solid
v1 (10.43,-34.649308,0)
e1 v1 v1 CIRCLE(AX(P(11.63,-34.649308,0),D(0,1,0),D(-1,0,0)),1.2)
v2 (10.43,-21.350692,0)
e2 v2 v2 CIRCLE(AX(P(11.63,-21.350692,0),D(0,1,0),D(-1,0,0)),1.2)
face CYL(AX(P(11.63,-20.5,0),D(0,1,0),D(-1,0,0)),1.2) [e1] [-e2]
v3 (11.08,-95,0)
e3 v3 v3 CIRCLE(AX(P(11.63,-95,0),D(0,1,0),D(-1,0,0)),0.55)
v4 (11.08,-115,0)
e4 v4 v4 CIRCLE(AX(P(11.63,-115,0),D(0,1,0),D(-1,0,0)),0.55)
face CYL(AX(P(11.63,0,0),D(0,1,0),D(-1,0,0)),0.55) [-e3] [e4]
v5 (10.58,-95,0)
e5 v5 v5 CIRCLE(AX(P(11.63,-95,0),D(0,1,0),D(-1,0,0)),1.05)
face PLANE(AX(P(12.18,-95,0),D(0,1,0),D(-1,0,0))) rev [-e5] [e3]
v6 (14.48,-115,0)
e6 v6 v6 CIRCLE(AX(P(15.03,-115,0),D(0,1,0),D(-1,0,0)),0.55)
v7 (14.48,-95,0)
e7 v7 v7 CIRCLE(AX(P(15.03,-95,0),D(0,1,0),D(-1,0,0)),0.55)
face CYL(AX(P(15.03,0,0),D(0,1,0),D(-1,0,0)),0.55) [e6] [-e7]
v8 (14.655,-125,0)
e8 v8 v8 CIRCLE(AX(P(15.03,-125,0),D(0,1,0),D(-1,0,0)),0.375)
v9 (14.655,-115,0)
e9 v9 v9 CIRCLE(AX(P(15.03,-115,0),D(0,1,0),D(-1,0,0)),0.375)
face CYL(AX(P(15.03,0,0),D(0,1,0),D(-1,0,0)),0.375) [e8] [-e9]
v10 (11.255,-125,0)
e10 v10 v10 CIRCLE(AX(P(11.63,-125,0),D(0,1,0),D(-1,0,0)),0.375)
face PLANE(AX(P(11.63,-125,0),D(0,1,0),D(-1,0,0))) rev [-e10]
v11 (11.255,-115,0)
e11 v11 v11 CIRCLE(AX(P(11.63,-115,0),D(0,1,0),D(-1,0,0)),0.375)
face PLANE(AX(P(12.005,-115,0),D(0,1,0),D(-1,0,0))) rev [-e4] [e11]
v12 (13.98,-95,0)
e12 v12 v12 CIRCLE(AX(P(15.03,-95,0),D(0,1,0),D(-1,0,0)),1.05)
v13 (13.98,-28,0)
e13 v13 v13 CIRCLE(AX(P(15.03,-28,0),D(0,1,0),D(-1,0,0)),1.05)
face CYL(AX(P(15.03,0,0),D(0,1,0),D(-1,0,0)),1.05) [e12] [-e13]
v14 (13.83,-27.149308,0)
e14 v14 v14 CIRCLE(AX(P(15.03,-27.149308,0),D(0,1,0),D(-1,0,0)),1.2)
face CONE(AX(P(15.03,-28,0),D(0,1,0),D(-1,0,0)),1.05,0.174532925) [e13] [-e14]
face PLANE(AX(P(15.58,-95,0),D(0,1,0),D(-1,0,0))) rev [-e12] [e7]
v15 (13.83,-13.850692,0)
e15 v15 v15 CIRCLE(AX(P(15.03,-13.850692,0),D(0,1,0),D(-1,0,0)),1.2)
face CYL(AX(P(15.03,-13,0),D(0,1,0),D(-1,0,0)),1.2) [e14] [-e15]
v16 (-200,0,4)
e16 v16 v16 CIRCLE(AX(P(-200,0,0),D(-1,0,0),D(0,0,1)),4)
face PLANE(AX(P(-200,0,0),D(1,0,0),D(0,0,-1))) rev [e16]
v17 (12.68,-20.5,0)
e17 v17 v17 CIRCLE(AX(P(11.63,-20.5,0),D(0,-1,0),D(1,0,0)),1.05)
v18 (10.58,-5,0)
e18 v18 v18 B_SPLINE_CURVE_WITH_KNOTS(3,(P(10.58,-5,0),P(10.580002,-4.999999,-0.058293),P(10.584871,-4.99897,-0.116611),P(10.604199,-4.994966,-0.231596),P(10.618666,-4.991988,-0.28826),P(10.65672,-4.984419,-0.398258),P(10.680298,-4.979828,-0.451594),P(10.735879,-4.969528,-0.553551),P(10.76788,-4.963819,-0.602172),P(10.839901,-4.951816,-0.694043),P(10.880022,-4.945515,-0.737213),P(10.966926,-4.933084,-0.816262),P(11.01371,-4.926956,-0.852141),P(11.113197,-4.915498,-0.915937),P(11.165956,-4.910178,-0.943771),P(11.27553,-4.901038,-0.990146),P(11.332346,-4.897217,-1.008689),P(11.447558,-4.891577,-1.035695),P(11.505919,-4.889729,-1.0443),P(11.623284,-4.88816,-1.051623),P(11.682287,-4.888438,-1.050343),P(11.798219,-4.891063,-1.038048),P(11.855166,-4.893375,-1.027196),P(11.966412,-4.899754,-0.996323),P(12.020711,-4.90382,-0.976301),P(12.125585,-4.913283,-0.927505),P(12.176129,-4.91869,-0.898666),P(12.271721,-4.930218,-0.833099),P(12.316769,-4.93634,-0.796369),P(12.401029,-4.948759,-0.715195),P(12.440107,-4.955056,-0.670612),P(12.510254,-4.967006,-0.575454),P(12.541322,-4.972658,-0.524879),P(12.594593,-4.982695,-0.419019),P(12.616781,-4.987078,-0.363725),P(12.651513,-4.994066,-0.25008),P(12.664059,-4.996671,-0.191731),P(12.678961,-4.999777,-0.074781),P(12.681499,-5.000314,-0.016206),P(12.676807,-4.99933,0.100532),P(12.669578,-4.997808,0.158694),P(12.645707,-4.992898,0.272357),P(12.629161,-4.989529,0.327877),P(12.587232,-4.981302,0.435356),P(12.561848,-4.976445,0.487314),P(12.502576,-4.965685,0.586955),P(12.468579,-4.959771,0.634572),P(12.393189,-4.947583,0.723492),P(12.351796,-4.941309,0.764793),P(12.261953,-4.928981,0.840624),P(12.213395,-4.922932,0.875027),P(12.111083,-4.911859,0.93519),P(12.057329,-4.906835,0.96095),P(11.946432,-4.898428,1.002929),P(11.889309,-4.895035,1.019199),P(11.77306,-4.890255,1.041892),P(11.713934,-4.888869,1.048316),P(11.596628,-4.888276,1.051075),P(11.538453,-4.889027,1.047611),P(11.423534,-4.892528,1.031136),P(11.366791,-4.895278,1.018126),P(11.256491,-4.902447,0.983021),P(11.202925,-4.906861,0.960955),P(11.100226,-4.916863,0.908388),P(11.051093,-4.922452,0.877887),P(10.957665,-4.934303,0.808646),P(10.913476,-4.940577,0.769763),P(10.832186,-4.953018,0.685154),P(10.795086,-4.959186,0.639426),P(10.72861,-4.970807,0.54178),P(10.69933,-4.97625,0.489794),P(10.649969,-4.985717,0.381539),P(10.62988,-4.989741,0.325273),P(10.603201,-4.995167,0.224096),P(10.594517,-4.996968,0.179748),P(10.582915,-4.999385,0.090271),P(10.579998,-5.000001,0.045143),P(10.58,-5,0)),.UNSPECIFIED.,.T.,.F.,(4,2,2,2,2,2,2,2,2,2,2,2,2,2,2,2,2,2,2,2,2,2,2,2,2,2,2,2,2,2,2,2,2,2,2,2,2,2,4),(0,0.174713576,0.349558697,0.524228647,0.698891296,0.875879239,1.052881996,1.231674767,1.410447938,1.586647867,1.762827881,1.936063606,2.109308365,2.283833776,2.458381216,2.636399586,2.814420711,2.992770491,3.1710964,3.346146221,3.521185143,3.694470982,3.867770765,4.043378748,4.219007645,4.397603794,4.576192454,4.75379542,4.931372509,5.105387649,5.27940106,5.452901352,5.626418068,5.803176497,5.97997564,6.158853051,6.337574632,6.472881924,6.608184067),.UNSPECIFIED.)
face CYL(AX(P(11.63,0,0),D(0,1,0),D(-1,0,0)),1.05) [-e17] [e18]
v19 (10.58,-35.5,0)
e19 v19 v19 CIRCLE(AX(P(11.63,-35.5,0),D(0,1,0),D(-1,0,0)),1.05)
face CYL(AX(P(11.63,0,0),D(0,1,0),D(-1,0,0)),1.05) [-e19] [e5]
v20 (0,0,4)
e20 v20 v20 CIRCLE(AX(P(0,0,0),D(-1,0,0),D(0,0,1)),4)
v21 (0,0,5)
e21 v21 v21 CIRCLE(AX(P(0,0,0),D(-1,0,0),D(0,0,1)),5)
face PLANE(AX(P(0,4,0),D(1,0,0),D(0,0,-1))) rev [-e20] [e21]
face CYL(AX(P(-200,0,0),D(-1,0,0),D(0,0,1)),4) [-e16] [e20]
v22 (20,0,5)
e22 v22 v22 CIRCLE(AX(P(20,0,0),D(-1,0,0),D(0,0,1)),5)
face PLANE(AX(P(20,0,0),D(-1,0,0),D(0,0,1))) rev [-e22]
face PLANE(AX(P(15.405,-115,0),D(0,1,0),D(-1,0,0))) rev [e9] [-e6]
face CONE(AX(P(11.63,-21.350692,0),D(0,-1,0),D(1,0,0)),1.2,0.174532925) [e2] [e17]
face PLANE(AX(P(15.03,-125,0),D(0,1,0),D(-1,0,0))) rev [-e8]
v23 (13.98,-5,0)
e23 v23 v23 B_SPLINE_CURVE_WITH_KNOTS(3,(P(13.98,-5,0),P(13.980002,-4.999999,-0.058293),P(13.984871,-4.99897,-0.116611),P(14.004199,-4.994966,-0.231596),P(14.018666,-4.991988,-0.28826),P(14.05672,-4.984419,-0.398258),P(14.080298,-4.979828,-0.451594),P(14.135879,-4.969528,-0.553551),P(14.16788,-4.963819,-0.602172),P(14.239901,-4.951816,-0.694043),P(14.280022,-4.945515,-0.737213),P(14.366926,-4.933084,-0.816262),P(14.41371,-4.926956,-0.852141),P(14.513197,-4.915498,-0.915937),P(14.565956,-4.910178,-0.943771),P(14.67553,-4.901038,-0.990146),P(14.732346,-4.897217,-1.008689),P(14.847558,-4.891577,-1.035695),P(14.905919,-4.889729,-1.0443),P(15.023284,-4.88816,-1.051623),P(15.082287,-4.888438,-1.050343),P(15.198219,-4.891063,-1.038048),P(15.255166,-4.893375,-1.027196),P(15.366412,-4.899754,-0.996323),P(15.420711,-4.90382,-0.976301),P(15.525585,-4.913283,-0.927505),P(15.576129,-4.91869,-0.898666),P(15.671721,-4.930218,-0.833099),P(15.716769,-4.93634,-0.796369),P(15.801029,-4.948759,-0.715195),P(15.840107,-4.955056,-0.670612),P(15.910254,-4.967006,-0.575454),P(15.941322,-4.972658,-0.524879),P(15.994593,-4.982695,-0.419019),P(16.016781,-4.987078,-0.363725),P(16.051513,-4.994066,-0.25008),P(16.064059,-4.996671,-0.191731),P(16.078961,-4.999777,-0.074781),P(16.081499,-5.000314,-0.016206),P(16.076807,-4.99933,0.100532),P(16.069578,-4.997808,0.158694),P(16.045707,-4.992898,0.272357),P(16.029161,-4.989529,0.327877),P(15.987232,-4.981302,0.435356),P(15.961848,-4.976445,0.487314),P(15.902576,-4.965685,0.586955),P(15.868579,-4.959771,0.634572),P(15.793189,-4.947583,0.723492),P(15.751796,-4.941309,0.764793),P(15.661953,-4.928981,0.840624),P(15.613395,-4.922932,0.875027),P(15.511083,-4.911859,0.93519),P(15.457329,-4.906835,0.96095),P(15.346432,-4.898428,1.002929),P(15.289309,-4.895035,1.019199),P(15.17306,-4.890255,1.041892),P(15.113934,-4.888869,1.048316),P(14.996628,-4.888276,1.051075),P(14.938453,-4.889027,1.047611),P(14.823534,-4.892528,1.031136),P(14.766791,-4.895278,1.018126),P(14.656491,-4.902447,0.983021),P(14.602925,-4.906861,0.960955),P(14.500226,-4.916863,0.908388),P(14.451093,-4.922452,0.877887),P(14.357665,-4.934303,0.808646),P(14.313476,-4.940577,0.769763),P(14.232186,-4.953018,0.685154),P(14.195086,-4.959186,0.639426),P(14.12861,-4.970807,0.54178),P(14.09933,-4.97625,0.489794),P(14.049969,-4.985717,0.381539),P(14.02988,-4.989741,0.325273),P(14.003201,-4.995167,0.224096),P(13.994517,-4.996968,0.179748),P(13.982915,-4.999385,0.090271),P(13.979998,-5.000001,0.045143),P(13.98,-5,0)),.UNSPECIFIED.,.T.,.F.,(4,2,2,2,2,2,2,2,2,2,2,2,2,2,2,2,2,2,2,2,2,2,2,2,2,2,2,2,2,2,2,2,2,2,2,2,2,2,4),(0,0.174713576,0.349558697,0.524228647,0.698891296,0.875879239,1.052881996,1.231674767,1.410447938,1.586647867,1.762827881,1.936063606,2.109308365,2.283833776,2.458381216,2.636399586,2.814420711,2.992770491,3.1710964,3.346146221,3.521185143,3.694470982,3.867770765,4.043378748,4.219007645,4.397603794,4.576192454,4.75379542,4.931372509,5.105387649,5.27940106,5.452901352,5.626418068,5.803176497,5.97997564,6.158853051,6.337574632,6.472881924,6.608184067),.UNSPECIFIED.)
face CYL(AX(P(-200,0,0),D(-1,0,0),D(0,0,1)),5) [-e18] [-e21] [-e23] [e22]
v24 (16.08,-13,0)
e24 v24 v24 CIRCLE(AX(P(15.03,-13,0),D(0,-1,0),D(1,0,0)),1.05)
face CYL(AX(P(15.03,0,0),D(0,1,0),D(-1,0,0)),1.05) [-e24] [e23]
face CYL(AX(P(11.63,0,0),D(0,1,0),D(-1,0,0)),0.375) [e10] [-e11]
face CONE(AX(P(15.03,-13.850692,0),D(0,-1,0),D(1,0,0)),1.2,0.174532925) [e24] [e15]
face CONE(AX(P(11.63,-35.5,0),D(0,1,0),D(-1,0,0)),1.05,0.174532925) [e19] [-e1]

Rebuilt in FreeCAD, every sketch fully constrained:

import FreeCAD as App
import Part
import Sketcher

V = App.Vector
Q = App.Units.Quantity

doc = App.newDocument("Part")
params = doc.addObject("Spreadsheet::Sheet", "Params")
for row, (alias, value) in enumerate([
    ("sketch1_width", "200 mm"),
    ("sketch1_width2", "220 mm"),
    ("sketch1_height", "1 mm"),
    ("sketch1_height2", "4 mm"),
    ("revolution_angle", "360 deg"),
    ("sketch2_height", "10 mm"),
    ("sketch2_height2", "20 mm"),
    ("sketch2_height3", "95 mm"),
    ("sketch2_width", "0.5 mm"),
    ("sketch2_width2", "1.05 mm"),
    ("revolution2_angle", "360 deg"),
    ("linearpattern_pitch", "3.4 mm"),
    ("sketch3_height", "15 mm"),
    ("sketch3_width", "1.05 mm"),
    ("revolution3_angle", "360 deg"),
    ("sketch4_height", "15 mm"),
    ("sketch4_width", "1.05 mm"),
    ("revolution4_angle", "360 deg"),
], start=1):
    params.set(f"A{row}", alias)
    params.set(f"B{row}", "=" + value)
    params.setAlias(f"B{row}", alias)

body = doc.addObject("PartDesign::Body", "Body")

# Sketch on XY plane
sketch1 = doc.addObject("Sketcher::SketchObject", "Sketch")
body.addObject(sketch1)
sketch1.AttachmentSupport = (doc.XY_Plane, [""])
sketch1.MapMode = "FlatFace"
sketch1.addGeometry([
    Part.LineSegment(V(0, 5, 0), V(0, 4, 0)),  # 0
    Part.LineSegment(V(0, 4, 0), V(-200, 4, 0)),  # 1
    Part.LineSegment(V(-200, 4, 0), V(-200, 0, 0)),  # 2
    Part.LineSegment(V(-200, 0, 0), V(20, 0, 0)),  # 3
    Part.LineSegment(V(20, 0, 0), V(20, 5, 0)),  # 4
    Part.LineSegment(V(20, 5, 0), V(0, 5, 0)),  # 5
], False)
sketch1.addConstraint([
    Sketcher.Constraint("Coincident", 0, 2, 1, 1),
    Sketcher.Constraint("Coincident", 1, 2, 2, 1),
    Sketcher.Constraint("Coincident", 2, 2, 3, 1),
    Sketcher.Constraint("Coincident", 3, 2, 4, 1),
    Sketcher.Constraint("Coincident", 4, 2, 5, 1),
    Sketcher.Constraint("Coincident", 5, 2, 0, 1),
    Sketcher.Constraint("Vertical", 0),
    Sketcher.Constraint("Horizontal", 1),
    Sketcher.Constraint("Vertical", 2),
    Sketcher.Constraint("Horizontal", 3),
    Sketcher.Constraint("Vertical", 4),
    Sketcher.Constraint("Horizontal", 5),
    Sketcher.Constraint("PointOnObject", 0, 2, -2),
    Sketcher.Constraint("PointOnObject", 2, 2, -1),
    Sketcher.Constraint("DistanceX", 1, 2, 1, 1, 200.0),
    Sketcher.Constraint("DistanceX", 3, 1, 3, 2, 220.0),
    Sketcher.Constraint("DistanceY", 0, 2, 0, 1, 1.0),
    Sketcher.Constraint("DistanceY", 2, 2, 2, 1, 4.0),
])
sketch1.setExpression("Constraints[14]", "Params.sketch1_width")
sketch1.setExpression("Constraints[15]", "Params.sketch1_width2")
sketch1.setExpression("Constraints[16]", "Params.sketch1_height")
sketch1.setExpression("Constraints[17]", "Params.sketch1_height2")
revolution = doc.addObject("PartDesign::Revolution", "Revolution")
body.addObject(revolution)
revolution.Profile = sketch1
revolution.ReferenceAxis = (sketch1, ["H_Axis"])
revolution.setExpression("Angle", "Params.revolution_angle")

# Sketch on XY plane
sketch2 = doc.addObject("Sketcher::SketchObject", "Sketch001")
body.addObject(sketch2)
sketch2.AttachmentSupport = (doc.XY_Plane, [""])
sketch2.MapMode = "FlatFace"
sketch2.addGeometry([
    Part.LineSegment(V(15.405, -125, 0), V(15.405, -115, 0)),  # 0
    Part.LineSegment(V(15.405, -115, 0), V(15.58, -115, 0)),  # 1
    Part.LineSegment(V(15.58, -115, 0), V(15.58, -95, 0)),  # 2
    Part.LineSegment(V(15.58, -95, 0), V(16.08, -95, 0)),  # 3
    Part.LineSegment(V(16.08, -95, 0), V(16.08, 0, 0)),  # 4
    Part.LineSegment(V(16.08, 0, 0), V(15.03, 0, 0)),  # 5
    Part.LineSegment(V(15.03, 0, 0), V(15.03, -125, 0)),  # 6
    Part.LineSegment(V(15.03, -125, 0), V(15.405, -125, 0)),  # 7
], False)
sketch2.addGeometry(Part.LineSegment(V(15.03, 0, 0), V(15.03, -125, 0)), True)  # axis
sketch2.addConstraint([
    Sketcher.Constraint("Coincident", 0, 2, 1, 1),
    Sketcher.Constraint("Coincident", 1, 2, 2, 1),
    Sketcher.Constraint("Coincident", 2, 2, 3, 1),
    Sketcher.Constraint("Coincident", 3, 2, 4, 1),
    Sketcher.Constraint("Coincident", 4, 2, 5, 1),
    Sketcher.Constraint("Coincident", 5, 2, 6, 1),
    Sketcher.Constraint("Coincident", 6, 2, 7, 1),
    Sketcher.Constraint("Coincident", 7, 2, 0, 1),
    Sketcher.Constraint("Vertical", 0),
    Sketcher.Constraint("Horizontal", 1),
    Sketcher.Constraint("Vertical", 2),
    Sketcher.Constraint("Horizontal", 3),
    Sketcher.Constraint("Vertical", 4),
    Sketcher.Constraint("Horizontal", 5),
    Sketcher.Constraint("Vertical", 6),
    Sketcher.Constraint("Horizontal", 7),
    Sketcher.Constraint("Vertical", 8),
    Sketcher.Constraint("Coincident", 8, 1, 5, 2),
    Sketcher.Constraint("PointOnObject", 4, 2, -1),
    Sketcher.Constraint("Horizontal", 7, 2, 8, 2),
    Sketcher.Constraint("DistanceY", 0, 1, 0, 2, 10.0),
    Sketcher.Constraint("DistanceY", 2, 1, 2, 2, 20.0),
    Sketcher.Constraint("DistanceY", 4, 1, 4, 2, 95.0),
    Sketcher.Constraint("DistanceX", 3, 1, 3, 2, 0.5),
    Sketcher.Constraint("DistanceX", 5, 2, 5, 1, 1.05),
    Sketcher.Constraint("DistanceX", 1, 1, 1, 2, 0.175),
    Sketcher.Constraint("DistanceX", -1, 1, 1, 2, 15.58),
])
sketch2.setExpression("Constraints[20]", "Params.sketch2_height")
sketch2.setExpression("Constraints[21]", "Params.sketch2_height2")
sketch2.setExpression("Constraints[22]", "Params.sketch2_height3")
sketch2.setExpression("Constraints[23]", "Params.sketch2_width")
sketch2.setExpression("Constraints[24]", "Params.sketch2_width2")
revolution2 = doc.addObject("PartDesign::Revolution", "Revolution001")
body.addObject(revolution2)
revolution2.Profile = sketch2
revolution2.ReferenceAxis = (sketch2, ["Axis0"])
revolution2.setExpression("Angle", "Params.revolution2_angle")
doc.recompute()

linearpattern = doc.addObject("PartDesign::LinearPattern", "LinearPattern")
body.addObject(linearpattern)
linearpattern.Originals = [revolution2]
linearpattern.Direction = (doc.X_Axis, [""])
linearpattern.Mode = "offset"
linearpattern.setExpression("Offset", "Params.linearpattern_pitch")
linearpattern.Occurrences = 2
linearpattern.Reversed = True
body.Tip = linearpattern

# Sketch on XY plane
sketch3 = doc.addObject("Sketcher::SketchObject", "Sketch002")
body.addObject(sketch3)
sketch3.AttachmentSupport = (doc.XY_Plane, [""])
sketch3.MapMode = "FlatFace"
sketch3.addGeometry([
    Part.LineSegment(V(16.08, -13, 0), V(15.03, -13, 0)),  # 0
    Part.LineSegment(V(15.03, -13, 0), V(15.03, -28, 0)),  # 1
    Part.LineSegment(V(15.03, -28, 0), V(16.08, -28, 0)),  # 2
    Part.LineSegment(V(16.08, -28, 0), V(16.23, -27.149308, 0)),  # 3
    Part.LineSegment(V(16.23, -27.149308, 0), V(16.23, -13.850692, 0)),  # 4
    Part.LineSegment(V(16.23, -13.850692, 0), V(16.08, -13, 0)),  # 5
], False)
sketch3.addGeometry(Part.LineSegment(V(15.03, -13, 0), V(15.03, -28, 0)), True)  # axis
sketch3.addConstraint([
    Sketcher.Constraint("Coincident", 0, 2, 1, 1),
    Sketcher.Constraint("Coincident", 1, 2, 2, 1),
    Sketcher.Constraint("Coincident", 2, 2, 3, 1),
    Sketcher.Constraint("Coincident", 3, 2, 4, 1),
    Sketcher.Constraint("Coincident", 4, 2, 5, 1),
    Sketcher.Constraint("Coincident", 5, 2, 0, 1),
    Sketcher.Constraint("Horizontal", 0),
    Sketcher.Constraint("Vertical", 1),
    Sketcher.Constraint("Horizontal", 2),
    Sketcher.Constraint("Vertical", 4),
    Sketcher.Constraint("Vertical", 6),
    Sketcher.Constraint("Coincident", 6, 1, 0, 2),
    Sketcher.Constraint("Horizontal", 2, 2, 6, 2),
    Sketcher.Constraint("Vertical", 2, 2, 5, 2),
    Sketcher.Constraint("Equal", 3, 5),
    Sketcher.Constraint("DistanceY", 1, 2, 1, 1, 15.0),
    Sketcher.Constraint("Angle", 3, Q("80 deg")),
    Sketcher.Constraint("DistanceY", 0, 2, -1, 1, 13.0),
    Sketcher.Constraint("DistanceX", 0, 2, 0, 1, 1.05),
    Sketcher.Constraint("DistanceX", 1, 2, 3, 2, 1.2),
    Sketcher.Constraint("DistanceX", -1, 1, 0, 2, 15.03),
])
sketch3.setExpression("Constraints[15]", "Params.sketch3_height")
sketch3.setExpression("Constraints[18]", "Params.sketch3_width")
revolution3 = doc.addObject("PartDesign::Revolution", "Revolution002")
body.addObject(revolution3)
revolution3.Profile = sketch3
revolution3.ReferenceAxis = (sketch3, ["Axis0"])
revolution3.setExpression("Angle", "Params.revolution3_angle")

# Sketch on XY plane
sketch4 = doc.addObject("Sketcher::SketchObject", "Sketch003")
body.addObject(sketch4)
sketch4.AttachmentSupport = (doc.XY_Plane, [""])
sketch4.MapMode = "FlatFace"
sketch4.addGeometry([
    Part.LineSegment(V(12.68, -20.5, 0), V(11.63, -20.5, 0)),  # 0
    Part.LineSegment(V(11.63, -20.5, 0), V(11.63, -35.5, 0)),  # 1
    Part.LineSegment(V(11.63, -35.5, 0), V(12.68, -35.5, 0)),  # 2
    Part.LineSegment(V(12.68, -35.5, 0), V(12.83, -34.649308, 0)),  # 3
    Part.LineSegment(V(12.83, -34.649308, 0), V(12.83, -21.350692, 0)),  # 4
    Part.LineSegment(V(12.83, -21.350692, 0), V(12.68, -20.5, 0)),  # 5
], False)
sketch4.addGeometry(Part.LineSegment(V(11.63, -20.5, 0), V(11.63, -35.5, 0)), True)  # axis
sketch4.addConstraint([
    Sketcher.Constraint("Coincident", 0, 2, 1, 1),
    Sketcher.Constraint("Coincident", 1, 2, 2, 1),
    Sketcher.Constraint("Coincident", 2, 2, 3, 1),
    Sketcher.Constraint("Coincident", 3, 2, 4, 1),
    Sketcher.Constraint("Coincident", 4, 2, 5, 1),
    Sketcher.Constraint("Coincident", 5, 2, 0, 1),
    Sketcher.Constraint("Horizontal", 0),
    Sketcher.Constraint("Vertical", 1),
    Sketcher.Constraint("Horizontal", 2),
    Sketcher.Constraint("Vertical", 4),
    Sketcher.Constraint("Vertical", 6),
    Sketcher.Constraint("Coincident", 6, 1, 0, 2),
    Sketcher.Constraint("Horizontal", 2, 2, 6, 2),
    Sketcher.Constraint("Vertical", 2, 2, 5, 2),
    Sketcher.Constraint("Equal", 3, 5),
    Sketcher.Constraint("DistanceY", 1, 2, 1, 1, 15.0),
    Sketcher.Constraint("Angle", 3, Q("80 deg")),
    Sketcher.Constraint("DistanceX", 0, 2, 0, 1, 1.05),
    Sketcher.Constraint("DistanceY", 0, 2, -1, 1, 20.5),
    Sketcher.Constraint("DistanceX", 1, 2, 3, 2, 1.2),
    Sketcher.Constraint("DistanceX", -1, 1, 0, 2, 11.63),
])
sketch4.setExpression("Constraints[15]", "Params.sketch4_height")
sketch4.setExpression("Constraints[17]", "Params.sketch4_width")
revolution4 = doc.addObject("PartDesign::Revolution", "Revolution003")
body.addObject(revolution4)
revolution4.Profile = sketch4
revolution4.ReferenceAxis = (sketch4, ["Axis0"])
revolution4.setExpression("Angle", "Params.revolution4_angle")

doc.recompute()
